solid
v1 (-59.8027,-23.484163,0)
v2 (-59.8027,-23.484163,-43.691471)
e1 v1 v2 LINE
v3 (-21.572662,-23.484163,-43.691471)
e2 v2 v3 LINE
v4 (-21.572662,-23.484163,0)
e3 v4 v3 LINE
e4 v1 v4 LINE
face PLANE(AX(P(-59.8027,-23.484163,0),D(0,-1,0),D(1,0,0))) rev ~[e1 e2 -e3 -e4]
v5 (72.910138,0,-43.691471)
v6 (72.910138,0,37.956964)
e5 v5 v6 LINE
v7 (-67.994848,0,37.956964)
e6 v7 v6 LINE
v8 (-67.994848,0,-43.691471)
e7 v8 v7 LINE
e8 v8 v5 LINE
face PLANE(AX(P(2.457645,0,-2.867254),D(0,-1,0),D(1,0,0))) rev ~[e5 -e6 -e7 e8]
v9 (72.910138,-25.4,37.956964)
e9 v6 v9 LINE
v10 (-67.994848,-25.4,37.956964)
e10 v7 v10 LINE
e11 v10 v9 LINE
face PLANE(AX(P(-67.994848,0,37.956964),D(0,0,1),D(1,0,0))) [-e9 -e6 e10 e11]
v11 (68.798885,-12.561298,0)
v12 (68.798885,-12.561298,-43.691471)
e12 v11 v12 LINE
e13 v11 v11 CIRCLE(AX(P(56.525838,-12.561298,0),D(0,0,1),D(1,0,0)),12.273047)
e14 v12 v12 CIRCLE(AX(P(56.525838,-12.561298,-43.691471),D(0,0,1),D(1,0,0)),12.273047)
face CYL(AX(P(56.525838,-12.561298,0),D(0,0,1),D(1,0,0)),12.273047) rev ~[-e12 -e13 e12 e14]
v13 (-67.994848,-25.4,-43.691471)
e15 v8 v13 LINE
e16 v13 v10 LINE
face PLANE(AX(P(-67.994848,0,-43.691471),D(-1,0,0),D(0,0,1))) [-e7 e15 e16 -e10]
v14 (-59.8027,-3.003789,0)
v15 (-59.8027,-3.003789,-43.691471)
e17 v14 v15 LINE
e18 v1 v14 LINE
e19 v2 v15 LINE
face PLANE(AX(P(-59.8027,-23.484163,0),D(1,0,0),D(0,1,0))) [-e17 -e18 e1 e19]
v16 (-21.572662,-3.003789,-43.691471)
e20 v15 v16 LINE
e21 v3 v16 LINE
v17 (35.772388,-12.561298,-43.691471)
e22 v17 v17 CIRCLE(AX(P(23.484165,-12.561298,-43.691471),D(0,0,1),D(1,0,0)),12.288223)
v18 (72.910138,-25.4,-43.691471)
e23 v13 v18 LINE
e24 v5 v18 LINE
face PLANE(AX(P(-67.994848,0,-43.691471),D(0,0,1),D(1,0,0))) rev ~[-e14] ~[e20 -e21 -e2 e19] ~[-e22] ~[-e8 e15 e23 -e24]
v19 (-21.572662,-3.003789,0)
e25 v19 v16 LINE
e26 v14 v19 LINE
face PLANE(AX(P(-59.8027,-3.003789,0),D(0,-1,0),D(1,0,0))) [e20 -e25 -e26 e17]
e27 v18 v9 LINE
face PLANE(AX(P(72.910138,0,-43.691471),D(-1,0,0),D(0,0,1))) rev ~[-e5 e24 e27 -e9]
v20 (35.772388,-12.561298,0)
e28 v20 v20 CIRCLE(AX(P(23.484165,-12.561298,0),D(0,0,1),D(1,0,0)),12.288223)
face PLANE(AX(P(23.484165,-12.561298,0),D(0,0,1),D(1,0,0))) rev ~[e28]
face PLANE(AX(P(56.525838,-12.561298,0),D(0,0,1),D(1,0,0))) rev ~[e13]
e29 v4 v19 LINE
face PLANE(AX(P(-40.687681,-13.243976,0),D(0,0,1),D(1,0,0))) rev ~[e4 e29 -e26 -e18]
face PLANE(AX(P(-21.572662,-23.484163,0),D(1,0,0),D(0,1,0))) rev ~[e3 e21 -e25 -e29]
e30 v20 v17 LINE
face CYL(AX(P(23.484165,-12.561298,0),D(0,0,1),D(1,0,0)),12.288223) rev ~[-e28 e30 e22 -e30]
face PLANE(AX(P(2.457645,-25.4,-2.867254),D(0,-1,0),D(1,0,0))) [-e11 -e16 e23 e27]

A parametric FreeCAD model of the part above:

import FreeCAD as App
import Part
import Sketcher

doc = App.newDocument("Part")
params = doc.addObject("Spreadsheet::Sheet", "Params")
for row, (alias, value) in enumerate([
    ("pad1_length", "1 in"),
], start=1):
    params.set(f"A{row}", alias)
    params.set(f"B{row}", "=" + value)
    params.setAlias(f"B{row}", alias)

body = doc.addObject("PartDesign::Body", "Body")

# Sketch on XZ plane
sketch1 = body.newObject("Sketcher::SketchObject", "Sketch")
sketch1.AttachmentSupport = (doc.getObject("XZ_Plane"), [""])
sketch1.MapMode = "FlatFace"
sketch1.addGeometry([
    Part.LineSegment(App.Vector(-68, 38, 0), App.Vector(-68, -44, 0)),
    Part.LineSegment(App.Vector(-68, -44, 0), App.Vector(73, -44, 0)),
    Part.LineSegment(App.Vector(73, -44, 0), App.Vector(73, 38, 0)),
    Part.LineSegment(App.Vector(73, 38, 0), App.Vector(-68, 38, 0)),
], False)
sketch1.addConstraint([
    Sketcher.Constraint("Coincident", 0, 2, 1, 1),
    Sketcher.Constraint("Coincident", 1, 2, 2, 1),
    Sketcher.Constraint("Coincident", 2, 2, 3, 1),
    Sketcher.Constraint("Coincident", 3, 2, 0, 1),
    Sketcher.Constraint("Vertical", 0),
    Sketcher.Constraint("Horizontal", 1),
    Sketcher.Constraint("Vertical", 2),
    Sketcher.Constraint("Horizontal", 3),
    Sketcher.Constraint("DistanceX", 1, 1, 1, 2, 140.904985),
    Sketcher.Constraint("DistanceY", 0, 2, 0, 1, 81.648435),
    Sketcher.Constraint("DistanceY", 0, 2, -1, 1, 43.691471),
    Sketcher.Constraint("DistanceX", 0, 2, -1, 1, 67.994848),
])
pad1 = body.newObject("PartDesign::Pad", "Pad")
pad1.Profile = sketch1
pad1.setExpression("Length", "Params.pad1_length")

# Sketch on XY plane
sketch2 = body.newObject("Sketcher::SketchObject", "Sketch001")
sketch2.AttachmentSupport = (doc.getObject("XY_Plane"), [""])
sketch2.MapMode = "FlatFace"
sketch2.addGeometry([
    Part.Circle(App.Vector(57, -13, 0), App.Vector(0, 0, 1), 12),  # 0
    Part.Circle(App.Vector(23, -13, 0), App.Vector(0, 0, 1), 12),  # 1
    Part.LineSegment(App.Vector(-60, -3, 0), App.Vector(-60, -23, 0)),  # 2
    Part.LineSegment(App.Vector(-60, -23, 0), App.Vector(-22, -23, 0)),  # 3
    Part.LineSegment(App.Vector(-22, -23, 0), App.Vector(-22, -3, 0)),  # 4
    Part.LineSegment(App.Vector(-22, -3, 0), App.Vector(-60, -3, 0)),  # 5
], False)
sketch2.addConstraint([
    Sketcher.Constraint("Coincident", 2, 2, 3, 1),
    Sketcher.Constraint("Coincident", 3, 2, 4, 1),
    Sketcher.Constraint("Coincident", 4, 2, 5, 1),
    Sketcher.Constraint("Coincident", 5, 2, 2, 1),
    Sketcher.Constraint("Vertical", 2),
    Sketcher.Constraint("Horizontal", 3),
    Sketcher.Constraint("Vertical", 4),
    Sketcher.Constraint("Horizontal", 5),
    Sketcher.Constraint("Horizontal", 0, 3, 1, 3),
    Sketcher.Constraint("Diameter", 0, 24.546094),
    Sketcher.Constraint("Diameter", 1, 24.576446),
    Sketcher.Constraint("DistanceY", 0, 3, -1, 1, 12.561298),
    Sketcher.Constraint("DistanceX", 2, 2, -1, 1, 59.8027),
    Sketcher.Constraint("DistanceX", 3, 2, 0, 3, 78.098501),
    Sketcher.Constraint("DistanceX", 3, 1, 3, 2, 38.230037),
    Sketcher.Constraint("DistanceY", 2, 2, 2, 1, 20.480374),
    Sketcher.Constraint("DistanceY", 4, 2, -1, 1, 3.003789),
    Sketcher.Constraint("DistanceX", -1, 1, 1, 3, 23.484165),
])
pocket1 = body.newObject("PartDesign::Pocket", "Pocket")
pocket1.Profile = sketch2
pocket1.Type = "ThroughAll"

doc.recompute()
